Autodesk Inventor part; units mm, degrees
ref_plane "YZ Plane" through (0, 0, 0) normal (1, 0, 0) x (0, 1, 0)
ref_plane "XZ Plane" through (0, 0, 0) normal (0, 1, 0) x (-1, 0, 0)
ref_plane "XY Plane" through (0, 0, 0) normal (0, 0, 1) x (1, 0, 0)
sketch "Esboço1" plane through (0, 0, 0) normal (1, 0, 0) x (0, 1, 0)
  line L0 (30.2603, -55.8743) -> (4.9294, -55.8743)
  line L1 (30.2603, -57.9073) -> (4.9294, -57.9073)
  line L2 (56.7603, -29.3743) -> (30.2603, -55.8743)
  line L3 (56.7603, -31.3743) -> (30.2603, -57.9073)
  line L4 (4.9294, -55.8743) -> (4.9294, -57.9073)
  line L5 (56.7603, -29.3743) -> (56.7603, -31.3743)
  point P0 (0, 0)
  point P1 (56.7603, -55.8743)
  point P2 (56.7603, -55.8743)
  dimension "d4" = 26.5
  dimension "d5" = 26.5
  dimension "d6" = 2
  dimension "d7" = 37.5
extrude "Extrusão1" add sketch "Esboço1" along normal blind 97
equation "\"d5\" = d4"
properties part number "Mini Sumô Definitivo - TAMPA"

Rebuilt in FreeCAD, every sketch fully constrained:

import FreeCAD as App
import Part
import Sketcher

V = App.Vector

doc = App.newDocument("Part")
body = doc.addObject("PartDesign::Body", "Body")

# Sketch on YZ plane
sketch1 = body.newObject("Sketcher::SketchObject", "Sketch")
sketch1.AttachmentSupport = (doc.getObject("YZ_Plane"), [""])
sketch1.MapMode = "FlatFace"
sketch1.addGeometry([
    Part.LineSegment(V(56.8, -29.4, 0), V(30.3, -55.9, 0)),  # 0
    Part.LineSegment(V(30.3, -55.9, 0), V(4.9, -55.9, 0)),  # 1
    Part.LineSegment(V(4.9, -55.9, 0), V(4.9, -57.9, 0)),  # 2
    Part.LineSegment(V(4.9, -57.9, 0), V(30.3, -57.9, 0)),  # 3
    Part.LineSegment(V(30.3, -57.9, 0), V(56.8, -31.4, 0)),  # 4
    Part.LineSegment(V(56.8, -31.4, 0), V(56.8, -29.4, 0)),  # 5
], False)
sketch1.addConstraint([
    Sketcher.Constraint("Coincident", 0, 2, 1, 1),
    Sketcher.Constraint("Coincident", 1, 2, 2, 1),
    Sketcher.Constraint("Coincident", 2, 2, 3, 1),
    Sketcher.Constraint("Coincident", 3, 2, 4, 1),
    Sketcher.Constraint("Coincident", 4, 2, 5, 1),
    Sketcher.Constraint("Coincident", 5, 2, 0, 1),
    Sketcher.Constraint("Horizontal", 1),
    Sketcher.Constraint("Vertical", 2),
    Sketcher.Constraint("Horizontal", 3),
    Sketcher.Constraint("Vertical", 5),
    Sketcher.Constraint("Vertical", 0, 2, 3, 2),
    Sketcher.Constraint("DistanceY", 5, 1, 5, 2, 2.0),
    Sketcher.Constraint("Distance", 4, 37.5),
    Sketcher.Constraint("DistanceX", 0, 2, 4, 2, 26.5),
    Sketcher.Constraint("DistanceY", 0, 2, 5, 2, 26.5),
    Sketcher.Constraint("DistanceX", 1, 2, 1, 1, 25.331),
    Sketcher.Constraint("DistanceX", -1, 1, 0, 2, 30.2603),
    Sketcher.Constraint("DistanceY", 0, 2, -1, 1, 55.8743),
])
pad1 = body.newObject("PartDesign::Pad", "Pad")
pad1.Profile = sketch1
pad1.Length = 97

doc.recompute()
